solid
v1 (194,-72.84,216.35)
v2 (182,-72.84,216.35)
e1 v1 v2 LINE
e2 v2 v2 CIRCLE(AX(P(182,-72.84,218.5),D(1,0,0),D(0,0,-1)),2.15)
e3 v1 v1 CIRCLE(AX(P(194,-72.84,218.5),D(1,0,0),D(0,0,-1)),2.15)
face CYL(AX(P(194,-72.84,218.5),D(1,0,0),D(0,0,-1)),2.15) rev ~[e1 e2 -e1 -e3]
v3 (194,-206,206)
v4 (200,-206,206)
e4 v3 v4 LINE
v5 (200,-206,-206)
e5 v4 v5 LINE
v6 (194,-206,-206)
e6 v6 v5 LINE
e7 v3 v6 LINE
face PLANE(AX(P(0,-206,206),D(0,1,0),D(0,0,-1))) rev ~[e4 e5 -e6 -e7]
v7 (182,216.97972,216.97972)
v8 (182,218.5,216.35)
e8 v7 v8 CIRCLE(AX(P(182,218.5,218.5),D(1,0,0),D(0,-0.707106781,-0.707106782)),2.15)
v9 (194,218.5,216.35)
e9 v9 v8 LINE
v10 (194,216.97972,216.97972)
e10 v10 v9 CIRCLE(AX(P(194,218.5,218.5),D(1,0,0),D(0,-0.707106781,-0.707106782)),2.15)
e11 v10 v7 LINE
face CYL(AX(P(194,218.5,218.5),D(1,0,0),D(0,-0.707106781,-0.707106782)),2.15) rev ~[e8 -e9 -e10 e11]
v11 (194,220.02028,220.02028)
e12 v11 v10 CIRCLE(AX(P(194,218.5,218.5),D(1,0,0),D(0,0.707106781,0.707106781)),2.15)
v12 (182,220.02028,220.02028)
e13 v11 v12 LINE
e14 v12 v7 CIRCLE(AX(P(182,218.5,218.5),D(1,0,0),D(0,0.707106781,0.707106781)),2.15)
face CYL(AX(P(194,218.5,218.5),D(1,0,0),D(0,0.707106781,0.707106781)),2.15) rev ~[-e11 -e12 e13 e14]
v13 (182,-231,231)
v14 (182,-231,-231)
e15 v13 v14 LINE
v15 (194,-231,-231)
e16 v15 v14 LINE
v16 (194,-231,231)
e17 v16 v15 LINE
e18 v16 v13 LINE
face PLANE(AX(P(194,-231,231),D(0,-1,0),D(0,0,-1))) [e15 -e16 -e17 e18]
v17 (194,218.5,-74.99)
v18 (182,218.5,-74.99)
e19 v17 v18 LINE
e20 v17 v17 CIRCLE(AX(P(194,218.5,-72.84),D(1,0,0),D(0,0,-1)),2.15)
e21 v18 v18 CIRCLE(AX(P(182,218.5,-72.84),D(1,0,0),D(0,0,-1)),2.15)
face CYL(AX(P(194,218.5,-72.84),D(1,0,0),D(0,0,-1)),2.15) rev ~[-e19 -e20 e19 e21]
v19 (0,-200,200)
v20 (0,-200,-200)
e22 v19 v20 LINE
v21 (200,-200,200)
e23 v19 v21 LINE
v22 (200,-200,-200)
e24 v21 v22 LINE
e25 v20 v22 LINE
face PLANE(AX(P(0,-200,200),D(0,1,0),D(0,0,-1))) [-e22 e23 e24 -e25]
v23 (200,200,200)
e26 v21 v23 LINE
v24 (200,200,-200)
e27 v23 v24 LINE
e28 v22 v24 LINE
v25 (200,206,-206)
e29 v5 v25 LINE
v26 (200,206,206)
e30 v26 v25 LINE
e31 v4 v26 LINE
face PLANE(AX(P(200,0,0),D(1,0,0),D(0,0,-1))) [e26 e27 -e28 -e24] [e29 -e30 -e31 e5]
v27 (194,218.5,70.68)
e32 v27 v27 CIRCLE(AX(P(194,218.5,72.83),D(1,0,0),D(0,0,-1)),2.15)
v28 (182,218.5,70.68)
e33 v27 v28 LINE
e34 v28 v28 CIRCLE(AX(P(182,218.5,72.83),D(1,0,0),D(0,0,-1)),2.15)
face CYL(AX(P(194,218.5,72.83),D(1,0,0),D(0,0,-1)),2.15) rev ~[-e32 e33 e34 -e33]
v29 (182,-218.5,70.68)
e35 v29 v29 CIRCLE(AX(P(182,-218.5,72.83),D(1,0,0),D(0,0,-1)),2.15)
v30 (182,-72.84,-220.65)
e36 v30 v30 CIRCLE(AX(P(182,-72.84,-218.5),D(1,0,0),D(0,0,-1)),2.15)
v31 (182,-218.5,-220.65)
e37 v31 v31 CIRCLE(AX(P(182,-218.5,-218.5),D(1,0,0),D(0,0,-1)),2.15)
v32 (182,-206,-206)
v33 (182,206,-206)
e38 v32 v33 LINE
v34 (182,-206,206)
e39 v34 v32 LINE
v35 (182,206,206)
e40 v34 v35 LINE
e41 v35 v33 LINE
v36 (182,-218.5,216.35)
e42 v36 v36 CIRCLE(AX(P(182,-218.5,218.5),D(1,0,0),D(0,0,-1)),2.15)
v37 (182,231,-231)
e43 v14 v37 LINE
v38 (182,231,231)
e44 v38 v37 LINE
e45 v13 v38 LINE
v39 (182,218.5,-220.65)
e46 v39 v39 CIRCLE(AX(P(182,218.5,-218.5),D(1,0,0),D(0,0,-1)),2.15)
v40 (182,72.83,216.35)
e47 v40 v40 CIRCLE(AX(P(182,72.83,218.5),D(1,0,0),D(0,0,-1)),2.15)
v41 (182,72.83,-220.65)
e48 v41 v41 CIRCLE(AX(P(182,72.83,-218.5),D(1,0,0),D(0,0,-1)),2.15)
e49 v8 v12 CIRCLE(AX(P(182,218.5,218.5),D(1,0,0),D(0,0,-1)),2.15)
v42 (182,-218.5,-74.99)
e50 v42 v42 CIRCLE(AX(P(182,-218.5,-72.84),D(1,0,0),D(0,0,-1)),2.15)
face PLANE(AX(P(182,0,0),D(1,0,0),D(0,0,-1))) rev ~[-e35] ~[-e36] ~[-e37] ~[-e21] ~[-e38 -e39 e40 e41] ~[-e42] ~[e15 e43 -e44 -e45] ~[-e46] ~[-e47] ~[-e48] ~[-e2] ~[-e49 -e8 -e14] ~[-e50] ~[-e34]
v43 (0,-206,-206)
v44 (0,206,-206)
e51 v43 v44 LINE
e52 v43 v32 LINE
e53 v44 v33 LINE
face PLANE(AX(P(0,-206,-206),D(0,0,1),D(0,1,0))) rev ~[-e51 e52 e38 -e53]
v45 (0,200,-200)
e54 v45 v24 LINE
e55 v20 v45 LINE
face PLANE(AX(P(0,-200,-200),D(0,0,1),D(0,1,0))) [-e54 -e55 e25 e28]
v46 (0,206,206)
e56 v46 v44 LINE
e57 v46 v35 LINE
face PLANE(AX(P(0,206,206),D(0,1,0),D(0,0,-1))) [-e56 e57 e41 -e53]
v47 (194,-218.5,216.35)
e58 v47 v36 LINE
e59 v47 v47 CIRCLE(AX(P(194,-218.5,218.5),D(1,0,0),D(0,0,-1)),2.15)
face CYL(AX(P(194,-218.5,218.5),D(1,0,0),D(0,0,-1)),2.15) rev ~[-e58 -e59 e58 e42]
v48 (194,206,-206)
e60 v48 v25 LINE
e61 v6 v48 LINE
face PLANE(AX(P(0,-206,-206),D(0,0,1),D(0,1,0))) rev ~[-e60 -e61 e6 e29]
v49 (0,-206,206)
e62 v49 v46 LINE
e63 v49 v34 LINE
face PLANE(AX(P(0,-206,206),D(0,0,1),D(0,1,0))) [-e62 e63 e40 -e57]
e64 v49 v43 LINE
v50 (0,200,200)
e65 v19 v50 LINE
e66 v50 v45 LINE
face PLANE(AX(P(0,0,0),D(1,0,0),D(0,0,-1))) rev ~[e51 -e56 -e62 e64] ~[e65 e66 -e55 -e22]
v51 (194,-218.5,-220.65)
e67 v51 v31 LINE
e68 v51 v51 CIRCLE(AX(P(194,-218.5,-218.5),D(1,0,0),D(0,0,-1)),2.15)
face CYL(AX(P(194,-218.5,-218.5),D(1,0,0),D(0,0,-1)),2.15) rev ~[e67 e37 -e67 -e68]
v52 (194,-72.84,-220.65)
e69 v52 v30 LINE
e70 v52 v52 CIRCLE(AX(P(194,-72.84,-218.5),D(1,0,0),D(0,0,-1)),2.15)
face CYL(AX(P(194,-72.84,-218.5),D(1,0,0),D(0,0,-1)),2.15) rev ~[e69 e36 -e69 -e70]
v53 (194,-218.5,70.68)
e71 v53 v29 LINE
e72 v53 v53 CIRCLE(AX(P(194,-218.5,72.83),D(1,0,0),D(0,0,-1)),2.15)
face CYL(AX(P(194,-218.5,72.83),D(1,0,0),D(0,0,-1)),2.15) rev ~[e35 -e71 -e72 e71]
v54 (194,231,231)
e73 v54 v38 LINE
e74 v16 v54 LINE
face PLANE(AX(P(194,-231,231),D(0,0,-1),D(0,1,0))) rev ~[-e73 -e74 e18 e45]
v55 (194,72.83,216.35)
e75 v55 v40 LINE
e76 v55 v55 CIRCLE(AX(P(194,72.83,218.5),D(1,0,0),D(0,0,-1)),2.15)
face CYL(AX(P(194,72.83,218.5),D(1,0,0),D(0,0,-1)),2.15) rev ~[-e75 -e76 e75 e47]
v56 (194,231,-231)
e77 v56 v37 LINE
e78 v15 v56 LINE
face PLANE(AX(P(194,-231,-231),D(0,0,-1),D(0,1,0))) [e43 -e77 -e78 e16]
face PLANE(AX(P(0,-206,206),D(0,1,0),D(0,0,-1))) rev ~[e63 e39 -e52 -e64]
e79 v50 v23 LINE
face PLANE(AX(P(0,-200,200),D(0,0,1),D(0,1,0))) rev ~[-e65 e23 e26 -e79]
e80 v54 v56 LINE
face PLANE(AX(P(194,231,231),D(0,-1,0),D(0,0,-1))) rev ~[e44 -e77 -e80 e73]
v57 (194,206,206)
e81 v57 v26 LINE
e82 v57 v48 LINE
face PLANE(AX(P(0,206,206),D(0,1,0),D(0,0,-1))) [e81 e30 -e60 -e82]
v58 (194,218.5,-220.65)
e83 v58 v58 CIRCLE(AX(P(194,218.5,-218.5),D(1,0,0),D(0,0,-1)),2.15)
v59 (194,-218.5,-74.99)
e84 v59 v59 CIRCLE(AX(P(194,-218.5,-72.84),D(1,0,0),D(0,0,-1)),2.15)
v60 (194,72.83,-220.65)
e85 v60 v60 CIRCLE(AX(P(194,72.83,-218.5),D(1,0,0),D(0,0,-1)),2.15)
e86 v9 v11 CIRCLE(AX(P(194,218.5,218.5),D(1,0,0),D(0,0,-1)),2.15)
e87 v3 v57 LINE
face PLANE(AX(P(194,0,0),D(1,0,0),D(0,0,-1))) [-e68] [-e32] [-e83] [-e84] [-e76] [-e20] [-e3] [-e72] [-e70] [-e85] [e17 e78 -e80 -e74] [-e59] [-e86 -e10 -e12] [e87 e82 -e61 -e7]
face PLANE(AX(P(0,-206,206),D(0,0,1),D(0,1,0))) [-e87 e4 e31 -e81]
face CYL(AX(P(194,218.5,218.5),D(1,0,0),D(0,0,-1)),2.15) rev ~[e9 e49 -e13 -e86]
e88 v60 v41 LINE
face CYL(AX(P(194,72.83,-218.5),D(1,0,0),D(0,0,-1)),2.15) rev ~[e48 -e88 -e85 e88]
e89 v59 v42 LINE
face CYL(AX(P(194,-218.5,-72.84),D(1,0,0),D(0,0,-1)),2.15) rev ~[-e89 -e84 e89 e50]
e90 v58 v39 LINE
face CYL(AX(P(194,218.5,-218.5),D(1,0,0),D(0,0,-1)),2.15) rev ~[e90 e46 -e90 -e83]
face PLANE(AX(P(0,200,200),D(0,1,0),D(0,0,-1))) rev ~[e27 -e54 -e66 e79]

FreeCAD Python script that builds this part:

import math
import FreeCAD as App
import Part
import Sketcher
from FreeCAD import Vector
Q = App.Units.Quantity


def add_polygon(sketch, points):
    """Adds a closed chain of lines whose ends are joined by coincident constraints."""
    first, n = sketch.GeometryCount, len(points)
    for a, b in zip(points, points[1:] + points[:1]):
        sketch.addGeometry(Part.LineSegment(App.Vector(*a, 0), App.Vector(*b, 0)), False)
    for i in range(n):
        sketch.addConstraint(Sketcher.Constraint("Coincident", first + i, 2, first + (i + 1) % n, 1))

doc = App.newDocument("Part")
body = doc.addObject("PartDesign::Body", "Body")

# Sketch on YZ plane
sketch1 = body.newObject("Sketcher::SketchObject", "Sketch")
sketch1.AttachmentSupport = (doc.getObject("YZ_Plane"), [""])
sketch1.MapMode = "FlatFace"
add_polygon(sketch1, [(206, 206), (-206, 206), (-206, -206), (206, -206)])  # lines 0-3
add_polygon(sketch1, [(-200, -200), (-200, 200), (200, 200), (200, -200)])  # lines 4-7
sketch1.addConstraint([
    Sketcher.Constraint("Horizontal", 0),
    Sketcher.Constraint("Vertical", 1),
    Sketcher.Constraint("Horizontal", 2),
    Sketcher.Constraint("Vertical", 3),
    Sketcher.Constraint("Vertical", 4),
    Sketcher.Constraint("Horizontal", 5),
    Sketcher.Constraint("Vertical", 6),
    Sketcher.Constraint("Horizontal", 7),
    Sketcher.Constraint("Symmetric", 0, 2, 2, 2, -1, 1),
    Sketcher.Constraint("Symmetric", 4, 2, 6, 2, -1, 1),
    Sketcher.Constraint("Equal", 2, 1),
    Sketcher.Constraint("Equal", 7, 4),
    Sketcher.Constraint("DistanceX", 0, 2, 0, 1, Q("412 mm")),
    Sketcher.Constraint("DistanceX", 5, 1, 5, 2, Q("400 mm")),
])
pad1 = body.newObject("PartDesign::Pad", "Pad")
pad1.Profile = sketch1
pad1.Length = 200

# Sketch on YZ plane
sketch2 = body.newObject("Sketcher::SketchObject", "Sketch001")
sketch2.AttachmentSupport = (doc.getObject("YZ_Plane"), [""])
sketch2.MapMode = "FlatFace"
sketch2.AttachmentOffset = App.Placement(Vector(0, 0, 194), App.Rotation())
add_polygon(sketch2, [(231, 231), (-231, 231), (-231, -231), (231, -231)])  # lines 0-3
add_polygon(sketch2, [(-206, -206), (-206, 206), (206, 206), (206, -206)])  # lines 4-7
sketch2.addConstraint([
    Sketcher.Constraint("Horizontal", 0),
    Sketcher.Constraint("Vertical", 1),
    Sketcher.Constraint("Horizontal", 2),
    Sketcher.Constraint("Vertical", 3),
    Sketcher.Constraint("Vertical", 4),
    Sketcher.Constraint("Horizontal", 5),
    Sketcher.Constraint("Vertical", 6),
    Sketcher.Constraint("Horizontal", 7),
    Sketcher.Constraint("Symmetric", 0, 2, 2, 2, -1, 1),
    Sketcher.Constraint("Symmetric", 4, 2, 6, 2, -1, 1),
    Sketcher.Constraint("Equal", 2, 1),
    Sketcher.Constraint("Equal", 7, 4),
    Sketcher.Constraint("DistanceX", 0, 2, 0, 1, Q("462 mm")),
    Sketcher.Constraint("DistanceX", 5, 1, 5, 2, Q("412 mm")),
])
pad2 = body.newObject("PartDesign::Pad", "Pad001")
pad2.Profile = sketch2
pad2.Length = 12
pad2.Reversed = True

# Sketch on YZ plane
sketch3 = body.newObject("Sketcher::SketchObject", "Sketch002")
sketch3.AttachmentSupport = (doc.getObject("YZ_Plane"), [""])
sketch3.MapMode = "FlatFace"
sketch3.AttachmentOffset = App.Placement(Vector(0, 0, 194), App.Rotation())
sketch3.addGeometry([
    Part.ArcOfCircle(Part.Circle(Vector(218.5, 218.5, 0), Vector(0, 0, 1), 2.1), math.radians(-90), math.radians(45)),  # 0
    Part.ArcOfCircle(Part.Circle(Vector(218.5, 218.5, 0), Vector(0, 0, 1), 2.2), math.radians(45), math.radians(225)),  # 1
    Part.ArcOfCircle(Part.Circle(Vector(218.5, 218.5, 0), Vector(0, 0, 1), 2.2), math.radians(-135), math.radians(-90)),  # 2
    Part.Circle(Vector(218.5, 72.8, 0), Vector(0, 0, 1), 2.1),  # 3
    Part.Circle(Vector(218.5, -72.8, 0), Vector(0, 0, 1), 2.1),  # 4
    Part.Circle(Vector(-72.8, 218.5, 0), Vector(0, 0, 1), 2.1),  # 5
    Part.Circle(Vector(-218.5, 72.8, 0), Vector(0, 0, 1), 2.1),  # 6
    Part.Circle(Vector(-218.5, -72.8, 0), Vector(0, 0, 1), 2.1),  # 7
    Part.Circle(Vector(-72.8, -218.5, 0), Vector(0, 0, 1), 2.1),  # 8
    Part.Circle(Vector(72.8, 218.5, 0), Vector(0, 0, 1), 2.1),  # 9
    Part.Circle(Vector(-218.5, 218.5, 0), Vector(0, 0, 1), 2.1),  # 10
    Part.Circle(Vector(-218.5, -218.5, 0), Vector(0, 0, 1), 2.1),  # 11
    Part.Circle(Vector(72.8, -218.5, 0), Vector(0, 0, 1), 2.1),  # 12
    Part.Circle(Vector(218.5, -218.5, 0), Vector(0, 0, 1), 2.1),  # 13
], False)
sketch3.addConstraint([
    Sketcher.Constraint("Tangent", 0, 2, 1, 1),
    Sketcher.Constraint("Tangent", 1, 2, 2, 1),
    Sketcher.Constraint("Tangent", 2, 2, 0, 1),
    Sketcher.Constraint("Equal", 2, 3),
    Sketcher.Constraint("Equal", 3, 4),
    Sketcher.Constraint("Equal", 4, 5),
    Sketcher.Constraint("Equal", 5, 6),
    Sketcher.Constraint("Equal", 6, 7),
    Sketcher.Constraint("Equal", 7, 8),
    Sketcher.Constraint("Equal", 8, 9),
    Sketcher.Constraint("Equal", 9, 10),
    Sketcher.Constraint("Equal", 10, 11),
    Sketcher.Constraint("Equal", 11, 12),
    Sketcher.Constraint("Equal", 12, 13),
    Sketcher.Constraint("Symmetric", 0, 3, 11, 3, -1, 1),
    Sketcher.Constraint("Symmetric", 10, 3, 13, 3, -1, 1),
    Sketcher.Constraint("Symmetric", 3, 3, 6, 3, -2),
    Sketcher.Constraint("Symmetric", 4, 3, 7, 3, -2),
    Sketcher.Constraint("Symmetric", 0, 3, 10, 3, -2),
    Sketcher.Constraint("Symmetric", 5, 3, 8, 3, -1),
    Sketcher.Constraint("Symmetric", 9, 3, 12, 3, -1),
    Sketcher.Constraint("Horizontal", 2, 3, 5, 3),
    Sketcher.Constraint("Horizontal", 5, 3, 9, 3),
    Sketcher.Constraint("Vertical", 2, 3, 3, 3),
    Sketcher.Constraint("Vertical", 3, 3, 4, 3),
    Sketcher.Constraint("Vertical", 13, 3, 2, 2),
    Sketcher.Constraint("Diameter", 3, Q("4.3 mm")),
    Sketcher.Constraint("DistanceX", 6, 3, 3, 3, Q("437 mm")),
    Sketcher.Constraint("DistanceY", 8, 3, 5, 3, Q("437 mm")),
    Sketcher.Constraint("DistanceY", -1, 1, 3, 3, Q("72.83 mm")),
    Sketcher.Constraint("DistanceY", 4, 3, -1, 1, Q("72.84 mm")),
    Sketcher.Constraint("DistanceX", 5, 3, -1, 1, Q("72.84 mm")),
    Sketcher.Constraint("DistanceX", -1, 1, 9, 3, Q("72.83 mm")),
    Sketcher.Constraint("DistanceX", -1, 1, 0, 2, Q("220.02028 mm")),
    Sketcher.Constraint("DistanceX", -1, 1, 1, 2, Q("216.97972 mm")),
])
pocket1 = body.newObject("PartDesign::Pocket", "Pocket")
pocket1.Profile = sketch3
pocket1.Type = "ThroughAll"

doc.recompute()
